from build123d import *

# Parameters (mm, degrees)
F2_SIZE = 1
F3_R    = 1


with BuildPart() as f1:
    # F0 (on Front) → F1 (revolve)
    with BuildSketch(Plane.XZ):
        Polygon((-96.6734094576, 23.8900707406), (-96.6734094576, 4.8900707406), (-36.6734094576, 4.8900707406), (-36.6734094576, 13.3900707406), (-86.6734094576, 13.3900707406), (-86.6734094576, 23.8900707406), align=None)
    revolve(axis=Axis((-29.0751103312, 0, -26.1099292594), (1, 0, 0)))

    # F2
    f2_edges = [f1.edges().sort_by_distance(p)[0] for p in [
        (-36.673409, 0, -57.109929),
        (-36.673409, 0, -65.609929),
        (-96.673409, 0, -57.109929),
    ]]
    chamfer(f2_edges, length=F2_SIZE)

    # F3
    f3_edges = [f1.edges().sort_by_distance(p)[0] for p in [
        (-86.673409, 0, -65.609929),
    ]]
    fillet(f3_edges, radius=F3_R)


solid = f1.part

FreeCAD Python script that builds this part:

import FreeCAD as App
import Part
import Sketcher

V = App.Vector


def edges_at(feature, points):
    """Names of the edges that pass closest to the given points."""
    edges = feature.Shape.Edges
    near = lambda p: min(range(len(edges)), key=lambda i: edges[i].distToShape(Part.Vertex(*p))[0])
    return sorted({f"Edge{near(p) + 1}" for p in points})

doc = App.newDocument("Part")
body = doc.addObject("PartDesign::Body", "Body")

# Sketch on XZ plane
sketch1 = body.newObject("Sketcher::SketchObject", "Sketch")
sketch1.AttachmentSupport = (doc.getObject("XZ_Plane"), [""])
sketch1.MapMode = "FlatFace"
sketch1.addGeometry([
    Part.LineSegment(V(-96.673409, 23.890071, 0), V(-96.673409, 4.890071, 0)),  # 0
    Part.LineSegment(V(-96.673409, 4.890071, 0), V(-36.673409, 4.890071, 0)),  # 1
    Part.LineSegment(V(-36.673409, 4.890071, 0), V(-36.673409, 13.390071, 0)),  # 2
    Part.LineSegment(V(-36.673409, 13.390071, 0), V(-86.673409, 13.390071, 0)),  # 3
    Part.LineSegment(V(-86.673409, 13.390071, 0), V(-86.673409, 23.890071, 0)),  # 4
    Part.LineSegment(V(-86.673409, 23.890071, 0), V(-96.673409, 23.890071, 0)),  # 5
], False)
sketch1.addGeometry(Part.LineSegment(V(-96.673409, -26.109929, 0), V(-36.673409, -26.109929, 0)), True)  # axis
sketch1.addConstraint([
    Sketcher.Constraint("Coincident", 0, 2, 1, 1),
    Sketcher.Constraint("Coincident", 1, 2, 2, 1),
    Sketcher.Constraint("Coincident", 2, 2, 3, 1),
    Sketcher.Constraint("Coincident", 3, 2, 4, 1),
    Sketcher.Constraint("Coincident", 4, 2, 5, 1),
    Sketcher.Constraint("Coincident", 5, 2, 0, 1),
    Sketcher.Constraint("Vertical", 0),
    Sketcher.Constraint("Horizontal", 1),
    Sketcher.Constraint("Vertical", 2),
    Sketcher.Constraint("Horizontal", 3),
    Sketcher.Constraint("Vertical", 4),
    Sketcher.Constraint("Horizontal", 5),
    Sketcher.Constraint("Horizontal", 6),
    Sketcher.Constraint("Vertical", 5, 2, 6, 1),
    Sketcher.Constraint("Vertical", 2, 2, 6, 2),
    Sketcher.Constraint("DistanceX", 1, 1, 1, 2, 60.0),
    Sketcher.Constraint("DistanceX", 3, 2, 3, 1, 50.0),
    Sketcher.Constraint("DistanceY", 0, 2, 0, 1, 19.0),
    Sketcher.Constraint("DistanceY", 2, 1, 2, 2, 8.5),
    Sketcher.Constraint("DistanceY", 6, 1, 0, 2, 31.0),
    Sketcher.Constraint("DistanceX", 0, 2, -1, 1, 96.673409),
    Sketcher.Constraint("DistanceY", -1, 1, 0, 2, 4.890071),
])
revolution = body.newObject("PartDesign::Revolution", "Revolution")
revolution.Profile = sketch1
revolution.ReferenceAxis = (sketch1, ["Axis0"])
revolution.Angle = 360
doc.recompute()

chamfer = body.newObject("PartDesign::Chamfer", "Chamfer")
chamfer.Base = (revolution, edges_at(revolution, [(-36.673, 0, -57.11), (-36.673, 0, -65.61), (-96.673, 0, -57.11)]))
chamfer.Size = 1
doc.recompute()

fillet = body.newObject("PartDesign::Fillet", "Fillet")
fillet.Base = (chamfer, edges_at(chamfer, [(-86.673, 0, -65.61)]))
fillet.Radius = 1

doc.recompute()
